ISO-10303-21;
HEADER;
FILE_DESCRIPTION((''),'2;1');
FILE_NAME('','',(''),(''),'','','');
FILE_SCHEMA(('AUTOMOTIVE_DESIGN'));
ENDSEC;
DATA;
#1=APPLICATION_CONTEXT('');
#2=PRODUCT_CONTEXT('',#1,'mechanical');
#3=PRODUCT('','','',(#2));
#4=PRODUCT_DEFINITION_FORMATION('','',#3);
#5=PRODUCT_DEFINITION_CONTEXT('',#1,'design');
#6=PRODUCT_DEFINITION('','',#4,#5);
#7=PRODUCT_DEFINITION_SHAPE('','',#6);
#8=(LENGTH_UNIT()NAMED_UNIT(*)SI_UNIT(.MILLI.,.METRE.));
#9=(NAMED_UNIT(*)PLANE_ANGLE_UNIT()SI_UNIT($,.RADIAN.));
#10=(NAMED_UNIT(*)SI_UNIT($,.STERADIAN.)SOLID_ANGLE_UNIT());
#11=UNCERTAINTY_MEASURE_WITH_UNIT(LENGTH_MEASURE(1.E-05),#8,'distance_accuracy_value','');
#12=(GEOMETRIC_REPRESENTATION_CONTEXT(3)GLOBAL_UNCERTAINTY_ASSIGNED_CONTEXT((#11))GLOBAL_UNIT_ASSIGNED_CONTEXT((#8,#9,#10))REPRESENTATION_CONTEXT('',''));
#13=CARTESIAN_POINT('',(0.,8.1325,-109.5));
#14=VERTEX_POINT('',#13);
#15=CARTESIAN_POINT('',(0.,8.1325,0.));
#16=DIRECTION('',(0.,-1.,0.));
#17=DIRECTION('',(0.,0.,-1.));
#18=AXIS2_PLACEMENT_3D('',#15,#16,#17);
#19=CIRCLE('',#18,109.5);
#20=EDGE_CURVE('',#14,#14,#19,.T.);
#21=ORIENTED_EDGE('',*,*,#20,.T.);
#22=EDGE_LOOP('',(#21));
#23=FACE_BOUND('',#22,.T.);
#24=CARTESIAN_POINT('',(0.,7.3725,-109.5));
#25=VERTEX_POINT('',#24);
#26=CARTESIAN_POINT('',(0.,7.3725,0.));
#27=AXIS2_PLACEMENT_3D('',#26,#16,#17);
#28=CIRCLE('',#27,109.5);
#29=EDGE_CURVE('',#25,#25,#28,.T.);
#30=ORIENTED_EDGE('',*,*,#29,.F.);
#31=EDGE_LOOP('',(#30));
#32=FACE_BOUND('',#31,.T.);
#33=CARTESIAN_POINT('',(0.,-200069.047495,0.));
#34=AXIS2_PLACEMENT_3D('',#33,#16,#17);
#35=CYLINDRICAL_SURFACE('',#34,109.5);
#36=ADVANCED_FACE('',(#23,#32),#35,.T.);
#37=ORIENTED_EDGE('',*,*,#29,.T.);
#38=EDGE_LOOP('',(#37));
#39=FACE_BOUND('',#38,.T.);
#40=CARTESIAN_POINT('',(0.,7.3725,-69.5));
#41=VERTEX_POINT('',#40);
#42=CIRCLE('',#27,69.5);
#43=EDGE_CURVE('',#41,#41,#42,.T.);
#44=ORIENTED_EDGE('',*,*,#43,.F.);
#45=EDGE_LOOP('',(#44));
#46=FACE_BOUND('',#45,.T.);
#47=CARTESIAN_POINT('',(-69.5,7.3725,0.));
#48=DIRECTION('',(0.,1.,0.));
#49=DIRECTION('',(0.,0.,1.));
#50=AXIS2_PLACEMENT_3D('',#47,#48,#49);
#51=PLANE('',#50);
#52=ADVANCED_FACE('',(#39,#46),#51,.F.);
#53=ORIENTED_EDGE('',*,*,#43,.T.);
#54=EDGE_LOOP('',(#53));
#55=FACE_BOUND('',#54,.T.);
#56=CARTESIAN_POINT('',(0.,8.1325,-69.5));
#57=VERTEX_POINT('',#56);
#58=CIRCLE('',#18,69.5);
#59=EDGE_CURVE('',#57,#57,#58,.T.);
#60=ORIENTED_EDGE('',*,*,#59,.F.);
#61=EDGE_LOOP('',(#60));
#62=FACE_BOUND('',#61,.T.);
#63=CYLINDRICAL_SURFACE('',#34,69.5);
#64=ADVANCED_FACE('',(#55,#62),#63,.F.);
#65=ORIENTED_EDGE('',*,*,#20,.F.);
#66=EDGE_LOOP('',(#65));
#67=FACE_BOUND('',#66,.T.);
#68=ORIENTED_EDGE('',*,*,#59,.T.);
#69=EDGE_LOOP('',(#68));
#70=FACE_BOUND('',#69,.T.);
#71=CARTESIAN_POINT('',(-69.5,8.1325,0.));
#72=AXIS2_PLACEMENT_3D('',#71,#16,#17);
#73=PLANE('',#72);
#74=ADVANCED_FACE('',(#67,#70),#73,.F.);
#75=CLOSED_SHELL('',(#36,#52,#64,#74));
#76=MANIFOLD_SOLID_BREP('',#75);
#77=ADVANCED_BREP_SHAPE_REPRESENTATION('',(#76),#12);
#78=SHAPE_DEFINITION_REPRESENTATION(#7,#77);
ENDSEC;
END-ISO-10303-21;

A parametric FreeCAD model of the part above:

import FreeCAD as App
import Part
import Sketcher

doc = App.newDocument("Part")
body = doc.addObject("PartDesign::Body", "Body")

# Sketch on XY plane
sketch1 = doc.addObject("Sketcher::SketchObject", "Sketch")
body.addObject(sketch1)
sketch1.AttachmentSupport = (doc.XY_Plane, [""])
sketch1.MapMode = "FlatFace"
sketch1.addGeometry([
    Part.LineSegment(App.Vector(-109.5, 8.1325, 0), App.Vector(-109.5, 7.3725, 0)),
    Part.LineSegment(App.Vector(-109.5, 7.3725, 0), App.Vector(-69.5, 7.3725, 0)),
    Part.LineSegment(App.Vector(-69.5, 7.3725, 0), App.Vector(-69.5, 8.1325, 0)),
    Part.LineSegment(App.Vector(-69.5, 8.1325, 0), App.Vector(-109.5, 8.1325, 0)),
], False)
sketch1.addConstraint([
    Sketcher.Constraint("Coincident", 0, 2, 1, 1),
    Sketcher.Constraint("Coincident", 1, 2, 2, 1),
    Sketcher.Constraint("Coincident", 2, 2, 3, 1),
    Sketcher.Constraint("Coincident", 3, 2, 0, 1),
    Sketcher.Constraint("Vertical", 0),
    Sketcher.Constraint("Horizontal", 1),
    Sketcher.Constraint("Vertical", 2),
    Sketcher.Constraint("Horizontal", 3),
    Sketcher.Constraint("DistanceX", 1, 1, 1, 2, 40.0),
    Sketcher.Constraint("DistanceY", 0, 2, 0, 1, 0.76),
    Sketcher.Constraint("DistanceX", 0, 2, -1, 1, 109.5),
    Sketcher.Constraint("DistanceY", -1, 1, 0, 2, 7.3725),
])
revolution = doc.addObject("PartDesign::Revolution", "Revolution")
body.addObject(revolution)
revolution.Profile = sketch1
revolution.ReferenceAxis = (sketch1, ["V_Axis"])
revolution.Angle = 360

doc.recompute()
